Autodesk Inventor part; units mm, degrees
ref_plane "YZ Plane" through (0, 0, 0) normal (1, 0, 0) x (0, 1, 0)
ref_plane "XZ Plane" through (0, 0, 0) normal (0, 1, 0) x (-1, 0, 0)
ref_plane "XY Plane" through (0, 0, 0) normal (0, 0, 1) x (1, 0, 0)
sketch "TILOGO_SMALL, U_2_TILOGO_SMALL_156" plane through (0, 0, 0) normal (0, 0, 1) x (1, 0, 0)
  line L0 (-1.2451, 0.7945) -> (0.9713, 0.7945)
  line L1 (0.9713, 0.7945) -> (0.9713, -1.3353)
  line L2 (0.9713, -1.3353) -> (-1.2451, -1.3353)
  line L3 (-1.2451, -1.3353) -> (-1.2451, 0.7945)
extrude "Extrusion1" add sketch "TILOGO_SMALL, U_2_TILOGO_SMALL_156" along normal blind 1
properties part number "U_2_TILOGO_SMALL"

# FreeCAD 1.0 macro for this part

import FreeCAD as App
import Part
import Sketcher


def add_polygon(sketch, points):
    """Adds a closed chain of lines whose ends are joined by coincident constraints."""
    first, n = sketch.GeometryCount, len(points)
    for a, b in zip(points, points[1:] + points[:1]):
        sketch.addGeometry(Part.LineSegment(App.Vector(*a, 0), App.Vector(*b, 0)), False)
    for i in range(n):
        sketch.addConstraint(Sketcher.Constraint("Coincident", first + i, 2, first + (i + 1) % n, 1))

doc = App.newDocument("Part")
body = doc.addObject("PartDesign::Body", "Body")

# Sketch on XY plane
sketch1 = doc.addObject("Sketcher::SketchObject", "Sketch")
body.addObject(sketch1)
sketch1.AttachmentSupport = (doc.XY_Plane, [""])
sketch1.MapMode = "FlatFace"
add_polygon(sketch1, [(1, 0.8), (-1.2, 0.8), (-1.2, -1.3), (1, -1.3)])  # lines 0-3
sketch1.addConstraint([
    Sketcher.Constraint("Horizontal", 0),
    Sketcher.Constraint("Vertical", 1),
    Sketcher.Constraint("Horizontal", 2),
    Sketcher.Constraint("Vertical", 3),
    Sketcher.Constraint("DistanceX", 0, 2, 0, 1, 2.2164),
    Sketcher.Constraint("DistanceY", 1, 2, 1, 1, 2.1298),
    Sketcher.Constraint("DistanceX", 0, 2, -1, 1, 1.245),
    Sketcher.Constraint("DistanceY", -1, 1, 0, 2, 0.7945),
])
pad1 = doc.addObject("PartDesign::Pad", "Pad")
body.addObject(pad1)
pad1.Profile = sketch1
pad1.Length = 1

doc.recompute()
